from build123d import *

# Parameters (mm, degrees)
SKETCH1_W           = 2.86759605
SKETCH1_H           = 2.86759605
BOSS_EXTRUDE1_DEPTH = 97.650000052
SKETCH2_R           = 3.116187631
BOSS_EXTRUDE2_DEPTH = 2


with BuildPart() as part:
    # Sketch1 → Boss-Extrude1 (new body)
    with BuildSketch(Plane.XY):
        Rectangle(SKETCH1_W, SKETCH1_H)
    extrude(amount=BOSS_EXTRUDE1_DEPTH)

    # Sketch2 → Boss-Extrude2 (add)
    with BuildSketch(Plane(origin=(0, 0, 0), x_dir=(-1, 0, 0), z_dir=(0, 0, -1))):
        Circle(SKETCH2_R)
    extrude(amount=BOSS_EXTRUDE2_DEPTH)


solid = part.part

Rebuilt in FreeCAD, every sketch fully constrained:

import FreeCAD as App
import Part
import Sketcher


def add_polygon(sketch, points):
    """Adds a closed chain of lines whose ends are joined by coincident constraints."""
    first, n = sketch.GeometryCount, len(points)
    for a, b in zip(points, points[1:] + points[:1]):
        sketch.addGeometry(Part.LineSegment(App.Vector(*a, 0), App.Vector(*b, 0)), False)
    for i in range(n):
        sketch.addConstraint(Sketcher.Constraint("Coincident", first + i, 2, first + (i + 1) % n, 1))

doc = App.newDocument("Part")
body = doc.addObject("PartDesign::Body", "Body")

# Sketch on XY plane
sketch1 = doc.addObject("Sketcher::SketchObject", "Sketch")
body.addObject(sketch1)
sketch1.AttachmentSupport = (doc.XY_Plane, [""])
sketch1.MapMode = "FlatFace"
add_polygon(sketch1, [(-1.433798, 1.433798), (-1.433798, -1.433798), (1.433798, -1.433798), (1.433798, 1.433798)])  # lines 0-3
sketch1.addConstraint([
    Sketcher.Constraint("Vertical", 0),
    Sketcher.Constraint("Horizontal", 1),
    Sketcher.Constraint("Vertical", 2),
    Sketcher.Constraint("Horizontal", 3),
    Sketcher.Constraint("Symmetric", 0, 2, 2, 2, -1, 1),
    Sketcher.Constraint("Equal", 3, 0),
    Sketcher.Constraint("DistanceX", 0, 2, -1, 1, 1.433798),
])
pad1 = doc.addObject("PartDesign::Pad", "Pad")
body.addObject(pad1)
pad1.Profile = sketch1
pad1.Length = 97.65

# Sketch on XY plane
sketch2 = doc.addObject("Sketcher::SketchObject", "Sketch001")
body.addObject(sketch2)
sketch2.AttachmentSupport = (doc.XY_Plane, [""])
sketch2.MapMode = "FlatFace"
sketch2.addGeometry(Part.Circle(App.Vector(0, 0, 0), App.Vector(0, 0, 1), 3.116188), False)
sketch2.addConstraint([
    Sketcher.Constraint("Coincident", 0, 3, -1, 1),
    Sketcher.Constraint("Diameter", 0, 6.232375),
])
pad2 = doc.addObject("PartDesign::Pad", "Pad001")
body.addObject(pad2)
pad2.Profile = sketch2
pad2.Length = 2
pad2.Reversed = True

doc.recompute()
